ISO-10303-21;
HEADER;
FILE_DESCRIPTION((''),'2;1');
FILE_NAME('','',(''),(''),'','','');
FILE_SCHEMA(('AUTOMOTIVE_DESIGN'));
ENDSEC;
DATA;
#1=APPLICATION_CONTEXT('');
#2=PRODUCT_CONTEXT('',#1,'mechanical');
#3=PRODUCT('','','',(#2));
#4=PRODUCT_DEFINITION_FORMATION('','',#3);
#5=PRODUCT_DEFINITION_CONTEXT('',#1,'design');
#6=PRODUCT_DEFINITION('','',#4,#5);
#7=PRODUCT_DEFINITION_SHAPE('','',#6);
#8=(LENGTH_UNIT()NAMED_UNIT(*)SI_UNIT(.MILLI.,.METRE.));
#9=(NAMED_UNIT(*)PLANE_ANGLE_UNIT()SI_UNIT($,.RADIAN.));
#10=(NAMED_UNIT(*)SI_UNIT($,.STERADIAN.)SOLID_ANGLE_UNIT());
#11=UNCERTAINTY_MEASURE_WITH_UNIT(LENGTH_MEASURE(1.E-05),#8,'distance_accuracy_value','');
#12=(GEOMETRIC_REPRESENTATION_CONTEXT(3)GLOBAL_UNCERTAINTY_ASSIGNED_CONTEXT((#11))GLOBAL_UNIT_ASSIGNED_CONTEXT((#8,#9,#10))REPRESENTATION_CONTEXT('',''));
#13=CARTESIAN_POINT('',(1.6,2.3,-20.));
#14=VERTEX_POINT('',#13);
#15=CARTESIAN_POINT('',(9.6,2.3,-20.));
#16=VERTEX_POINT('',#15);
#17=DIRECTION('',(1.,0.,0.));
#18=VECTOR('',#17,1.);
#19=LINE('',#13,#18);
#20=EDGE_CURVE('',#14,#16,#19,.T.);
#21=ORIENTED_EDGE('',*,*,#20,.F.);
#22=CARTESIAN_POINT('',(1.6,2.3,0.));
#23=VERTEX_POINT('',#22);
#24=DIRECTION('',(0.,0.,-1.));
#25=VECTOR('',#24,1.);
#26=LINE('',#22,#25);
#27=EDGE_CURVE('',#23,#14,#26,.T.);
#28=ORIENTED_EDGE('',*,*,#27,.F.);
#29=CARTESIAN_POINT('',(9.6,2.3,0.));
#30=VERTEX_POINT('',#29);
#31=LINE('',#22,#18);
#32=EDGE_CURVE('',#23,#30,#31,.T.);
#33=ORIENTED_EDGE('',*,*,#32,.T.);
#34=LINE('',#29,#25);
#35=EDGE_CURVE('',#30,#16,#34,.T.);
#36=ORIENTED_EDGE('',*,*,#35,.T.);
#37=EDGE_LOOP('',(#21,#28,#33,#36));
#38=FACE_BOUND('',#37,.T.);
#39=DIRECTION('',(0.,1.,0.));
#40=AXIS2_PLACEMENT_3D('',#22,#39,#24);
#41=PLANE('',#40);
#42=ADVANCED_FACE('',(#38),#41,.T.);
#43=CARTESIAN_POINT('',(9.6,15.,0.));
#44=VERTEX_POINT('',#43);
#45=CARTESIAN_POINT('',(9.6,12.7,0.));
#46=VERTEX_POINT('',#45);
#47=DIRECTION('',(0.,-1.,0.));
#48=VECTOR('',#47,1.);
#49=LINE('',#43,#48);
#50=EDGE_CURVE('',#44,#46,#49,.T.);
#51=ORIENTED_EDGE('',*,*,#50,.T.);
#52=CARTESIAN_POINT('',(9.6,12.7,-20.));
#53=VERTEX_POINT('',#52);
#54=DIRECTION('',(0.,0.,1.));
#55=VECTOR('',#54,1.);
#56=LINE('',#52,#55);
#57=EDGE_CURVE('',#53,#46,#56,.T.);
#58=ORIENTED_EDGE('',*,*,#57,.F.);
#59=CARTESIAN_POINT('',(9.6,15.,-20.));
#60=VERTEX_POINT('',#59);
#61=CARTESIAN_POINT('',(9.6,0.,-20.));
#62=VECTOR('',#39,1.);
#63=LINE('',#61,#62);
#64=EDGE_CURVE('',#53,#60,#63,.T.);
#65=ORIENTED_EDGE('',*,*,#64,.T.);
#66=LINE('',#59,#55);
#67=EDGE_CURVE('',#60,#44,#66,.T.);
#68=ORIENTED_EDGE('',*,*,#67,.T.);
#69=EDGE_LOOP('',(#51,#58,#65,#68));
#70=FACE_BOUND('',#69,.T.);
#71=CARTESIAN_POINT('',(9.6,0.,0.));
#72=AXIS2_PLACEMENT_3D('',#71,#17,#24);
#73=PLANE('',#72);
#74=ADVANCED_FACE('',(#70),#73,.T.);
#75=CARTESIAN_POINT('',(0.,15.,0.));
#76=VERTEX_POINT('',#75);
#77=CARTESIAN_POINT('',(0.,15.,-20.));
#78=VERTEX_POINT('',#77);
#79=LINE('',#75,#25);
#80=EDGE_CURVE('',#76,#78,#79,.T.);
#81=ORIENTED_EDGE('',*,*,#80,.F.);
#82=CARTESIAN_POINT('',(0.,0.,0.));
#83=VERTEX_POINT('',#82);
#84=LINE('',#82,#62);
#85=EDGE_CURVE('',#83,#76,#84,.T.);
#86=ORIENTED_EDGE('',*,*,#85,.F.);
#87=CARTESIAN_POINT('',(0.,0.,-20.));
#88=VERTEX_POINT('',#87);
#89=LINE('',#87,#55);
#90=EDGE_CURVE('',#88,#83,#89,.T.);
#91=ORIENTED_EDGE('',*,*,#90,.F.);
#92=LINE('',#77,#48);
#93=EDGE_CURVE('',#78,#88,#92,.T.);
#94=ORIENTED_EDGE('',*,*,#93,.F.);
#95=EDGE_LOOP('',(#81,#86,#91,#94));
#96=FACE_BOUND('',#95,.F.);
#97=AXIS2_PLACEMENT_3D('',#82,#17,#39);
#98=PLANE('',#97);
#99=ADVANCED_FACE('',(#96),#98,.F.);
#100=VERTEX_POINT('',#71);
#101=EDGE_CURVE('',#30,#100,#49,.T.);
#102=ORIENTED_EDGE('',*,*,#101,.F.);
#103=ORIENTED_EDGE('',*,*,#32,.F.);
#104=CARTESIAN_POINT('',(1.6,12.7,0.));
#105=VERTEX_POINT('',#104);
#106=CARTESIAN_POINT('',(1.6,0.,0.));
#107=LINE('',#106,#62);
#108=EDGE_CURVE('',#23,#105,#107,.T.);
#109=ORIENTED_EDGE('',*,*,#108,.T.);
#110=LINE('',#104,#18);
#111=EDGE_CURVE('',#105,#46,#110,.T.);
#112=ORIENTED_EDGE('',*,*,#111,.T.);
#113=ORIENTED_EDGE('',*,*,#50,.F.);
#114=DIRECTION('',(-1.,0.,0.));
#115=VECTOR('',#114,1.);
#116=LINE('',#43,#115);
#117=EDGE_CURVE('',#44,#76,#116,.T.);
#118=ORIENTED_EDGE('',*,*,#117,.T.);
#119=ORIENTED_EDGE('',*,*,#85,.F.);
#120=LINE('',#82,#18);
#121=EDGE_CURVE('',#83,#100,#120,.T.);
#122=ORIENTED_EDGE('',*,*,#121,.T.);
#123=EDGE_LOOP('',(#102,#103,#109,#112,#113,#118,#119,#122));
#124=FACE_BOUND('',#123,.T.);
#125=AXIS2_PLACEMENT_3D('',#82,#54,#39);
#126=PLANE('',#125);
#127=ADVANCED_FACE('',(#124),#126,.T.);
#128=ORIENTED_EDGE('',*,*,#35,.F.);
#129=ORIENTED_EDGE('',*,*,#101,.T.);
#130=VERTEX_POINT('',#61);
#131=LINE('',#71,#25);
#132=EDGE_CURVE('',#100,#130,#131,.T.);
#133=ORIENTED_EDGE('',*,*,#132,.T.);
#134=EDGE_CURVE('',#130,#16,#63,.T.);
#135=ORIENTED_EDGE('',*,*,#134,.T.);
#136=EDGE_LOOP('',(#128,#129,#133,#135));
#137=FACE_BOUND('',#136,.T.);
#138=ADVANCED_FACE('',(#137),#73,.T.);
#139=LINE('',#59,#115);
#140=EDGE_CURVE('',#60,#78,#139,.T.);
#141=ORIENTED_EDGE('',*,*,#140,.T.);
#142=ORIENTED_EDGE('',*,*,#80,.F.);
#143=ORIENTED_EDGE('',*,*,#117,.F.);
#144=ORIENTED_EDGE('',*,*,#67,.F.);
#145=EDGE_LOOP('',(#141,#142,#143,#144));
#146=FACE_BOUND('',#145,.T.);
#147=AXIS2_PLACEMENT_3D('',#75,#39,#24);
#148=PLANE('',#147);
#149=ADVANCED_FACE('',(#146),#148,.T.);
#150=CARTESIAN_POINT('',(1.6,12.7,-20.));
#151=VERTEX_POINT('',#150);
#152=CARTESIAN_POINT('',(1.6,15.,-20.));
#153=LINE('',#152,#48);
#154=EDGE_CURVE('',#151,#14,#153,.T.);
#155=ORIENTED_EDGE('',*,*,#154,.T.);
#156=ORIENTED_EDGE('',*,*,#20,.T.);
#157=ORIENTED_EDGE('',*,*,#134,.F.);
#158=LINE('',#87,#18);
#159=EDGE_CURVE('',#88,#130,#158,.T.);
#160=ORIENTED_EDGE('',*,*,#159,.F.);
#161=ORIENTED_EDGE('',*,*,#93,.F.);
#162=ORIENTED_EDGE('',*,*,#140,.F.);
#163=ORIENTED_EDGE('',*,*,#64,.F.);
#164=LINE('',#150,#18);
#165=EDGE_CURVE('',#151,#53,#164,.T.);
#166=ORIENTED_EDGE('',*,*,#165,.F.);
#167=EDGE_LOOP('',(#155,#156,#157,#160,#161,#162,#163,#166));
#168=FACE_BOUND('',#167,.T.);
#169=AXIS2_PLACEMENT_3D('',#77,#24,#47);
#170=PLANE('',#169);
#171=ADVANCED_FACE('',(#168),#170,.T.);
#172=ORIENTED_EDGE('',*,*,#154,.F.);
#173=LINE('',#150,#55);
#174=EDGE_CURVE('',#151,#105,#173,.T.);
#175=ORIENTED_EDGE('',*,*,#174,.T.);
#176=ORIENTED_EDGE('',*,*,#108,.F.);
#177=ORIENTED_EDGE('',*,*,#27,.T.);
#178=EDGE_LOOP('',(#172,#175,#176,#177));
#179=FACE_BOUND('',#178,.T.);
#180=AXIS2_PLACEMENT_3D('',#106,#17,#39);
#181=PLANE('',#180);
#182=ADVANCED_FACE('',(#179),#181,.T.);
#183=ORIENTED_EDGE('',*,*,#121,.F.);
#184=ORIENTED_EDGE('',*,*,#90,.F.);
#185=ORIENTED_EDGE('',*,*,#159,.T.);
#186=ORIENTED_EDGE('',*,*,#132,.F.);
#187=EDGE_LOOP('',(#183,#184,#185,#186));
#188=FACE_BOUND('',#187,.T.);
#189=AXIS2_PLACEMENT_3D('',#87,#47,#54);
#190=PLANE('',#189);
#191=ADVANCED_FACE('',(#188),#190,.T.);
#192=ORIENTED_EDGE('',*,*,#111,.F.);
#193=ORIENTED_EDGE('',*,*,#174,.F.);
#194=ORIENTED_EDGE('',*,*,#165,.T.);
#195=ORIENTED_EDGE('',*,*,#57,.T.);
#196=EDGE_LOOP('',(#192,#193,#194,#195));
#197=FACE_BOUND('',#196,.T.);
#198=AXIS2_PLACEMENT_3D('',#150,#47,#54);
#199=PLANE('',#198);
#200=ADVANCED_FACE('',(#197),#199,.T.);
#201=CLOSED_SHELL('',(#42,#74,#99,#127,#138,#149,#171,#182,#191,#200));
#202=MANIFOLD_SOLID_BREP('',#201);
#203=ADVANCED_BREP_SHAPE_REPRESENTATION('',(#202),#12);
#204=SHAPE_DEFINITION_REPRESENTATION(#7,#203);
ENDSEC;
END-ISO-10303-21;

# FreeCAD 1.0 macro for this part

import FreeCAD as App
import Part
import Sketcher

V = App.Vector
Q = App.Units.Quantity


def add_polygon(sketch, points):
    """Adds a closed chain of lines whose ends are joined by coincident constraints."""
    first, n = sketch.GeometryCount, len(points)
    for a, b in zip(points, points[1:] + points[:1]):
        sketch.addGeometry(Part.LineSegment(App.Vector(*a, 0), App.Vector(*b, 0)), False)
    for i in range(n):
        sketch.addConstraint(Sketcher.Constraint("Coincident", first + i, 2, first + (i + 1) % n, 1))

doc = App.newDocument("Part")
body = doc.addObject("PartDesign::Body", "Body")

# Sketch on YZ plane
sketch1 = body.newObject("Sketcher::SketchObject", "Sketch")
sketch1.AttachmentSupport = (doc.getObject("YZ_Plane"), [""])
sketch1.MapMode = "FlatFace"
add_polygon(sketch1, [(15, 0), (0, 0), (0, -20), (15, -20)])  # lines 0-3
sketch1.addConstraint(Sketcher.Constraint("Horizontal", 0))
sketch1.addConstraint(Sketcher.Constraint("Vertical", 1))
sketch1.addConstraint(Sketcher.Constraint("Horizontal", 2))
sketch1.addConstraint(Sketcher.Constraint("Vertical", 3))
sketch1.addConstraint(Sketcher.Constraint("Coincident", 0, 2, -1, 1))
sketch1.addConstraint(Sketcher.Constraint("DistanceX", 0, 2, 0, 1, Q("15 mm")))
sketch1.addConstraint(Sketcher.Constraint("DistanceY", 1, 2, 1, 1, Q("20 mm")))
pad1 = body.newObject("PartDesign::Pad", "Pad")
pad1.Profile = sketch1
pad1.Length = 1.6

# Sketch on YZ plane
sketch2 = body.newObject("Sketcher::SketchObject", "Sketch001")
sketch2.AttachmentSupport = (doc.getObject("YZ_Plane"), [""])
sketch2.MapMode = "FlatFace"
sketch2.AttachmentOffset = App.Placement(V(0, 0, 1.6), App.Rotation())
add_polygon(sketch2, [(15, -20), (15, 0), (12.7, 0), (12.7, -20)])  # lines 0-3
add_polygon(sketch2, [(2.3, -20), (2.3, 0), (0, 0), (0, -20)])  # lines 4-7
sketch2.addConstraint(Sketcher.Constraint("Vertical", 0))
sketch2.addConstraint(Sketcher.Constraint("Horizontal", 1))
sketch2.addConstraint(Sketcher.Constraint("Vertical", 2))
sketch2.addConstraint(Sketcher.Constraint("Horizontal", 3))
sketch2.addConstraint(Sketcher.Constraint("Vertical", 4))
sketch2.addConstraint(Sketcher.Constraint("Horizontal", 5))
sketch2.addConstraint(Sketcher.Constraint("Vertical", 6))
sketch2.addConstraint(Sketcher.Constraint("Horizontal", 7))
sketch2.addConstraint(Sketcher.Constraint("Coincident", 5, 2, -1, 1))
sketch2.addConstraint(Sketcher.Constraint("PointOnObject", 0, 2, -1))
sketch2.addConstraint(Sketcher.Constraint("Horizontal", 3, 2, 6, 2))
sketch2.addConstraint(Sketcher.Constraint("Equal", 3, 5))
sketch2.addConstraint(Sketcher.Constraint("DistanceX", 1, 2, 1, 1, Q("2.3 mm")))
sketch2.addConstraint(Sketcher.Constraint("DistanceY", 0, 1, 0, 2, Q("20 mm")))
sketch2.addConstraint(Sketcher.Constraint("DistanceX", -1, 1, 0, 2, Q("15 mm")))
pad2 = body.newObject("PartDesign::Pad", "Pad001")
pad2.Profile = sketch2
pad2.Length = 8

doc.recompute()
